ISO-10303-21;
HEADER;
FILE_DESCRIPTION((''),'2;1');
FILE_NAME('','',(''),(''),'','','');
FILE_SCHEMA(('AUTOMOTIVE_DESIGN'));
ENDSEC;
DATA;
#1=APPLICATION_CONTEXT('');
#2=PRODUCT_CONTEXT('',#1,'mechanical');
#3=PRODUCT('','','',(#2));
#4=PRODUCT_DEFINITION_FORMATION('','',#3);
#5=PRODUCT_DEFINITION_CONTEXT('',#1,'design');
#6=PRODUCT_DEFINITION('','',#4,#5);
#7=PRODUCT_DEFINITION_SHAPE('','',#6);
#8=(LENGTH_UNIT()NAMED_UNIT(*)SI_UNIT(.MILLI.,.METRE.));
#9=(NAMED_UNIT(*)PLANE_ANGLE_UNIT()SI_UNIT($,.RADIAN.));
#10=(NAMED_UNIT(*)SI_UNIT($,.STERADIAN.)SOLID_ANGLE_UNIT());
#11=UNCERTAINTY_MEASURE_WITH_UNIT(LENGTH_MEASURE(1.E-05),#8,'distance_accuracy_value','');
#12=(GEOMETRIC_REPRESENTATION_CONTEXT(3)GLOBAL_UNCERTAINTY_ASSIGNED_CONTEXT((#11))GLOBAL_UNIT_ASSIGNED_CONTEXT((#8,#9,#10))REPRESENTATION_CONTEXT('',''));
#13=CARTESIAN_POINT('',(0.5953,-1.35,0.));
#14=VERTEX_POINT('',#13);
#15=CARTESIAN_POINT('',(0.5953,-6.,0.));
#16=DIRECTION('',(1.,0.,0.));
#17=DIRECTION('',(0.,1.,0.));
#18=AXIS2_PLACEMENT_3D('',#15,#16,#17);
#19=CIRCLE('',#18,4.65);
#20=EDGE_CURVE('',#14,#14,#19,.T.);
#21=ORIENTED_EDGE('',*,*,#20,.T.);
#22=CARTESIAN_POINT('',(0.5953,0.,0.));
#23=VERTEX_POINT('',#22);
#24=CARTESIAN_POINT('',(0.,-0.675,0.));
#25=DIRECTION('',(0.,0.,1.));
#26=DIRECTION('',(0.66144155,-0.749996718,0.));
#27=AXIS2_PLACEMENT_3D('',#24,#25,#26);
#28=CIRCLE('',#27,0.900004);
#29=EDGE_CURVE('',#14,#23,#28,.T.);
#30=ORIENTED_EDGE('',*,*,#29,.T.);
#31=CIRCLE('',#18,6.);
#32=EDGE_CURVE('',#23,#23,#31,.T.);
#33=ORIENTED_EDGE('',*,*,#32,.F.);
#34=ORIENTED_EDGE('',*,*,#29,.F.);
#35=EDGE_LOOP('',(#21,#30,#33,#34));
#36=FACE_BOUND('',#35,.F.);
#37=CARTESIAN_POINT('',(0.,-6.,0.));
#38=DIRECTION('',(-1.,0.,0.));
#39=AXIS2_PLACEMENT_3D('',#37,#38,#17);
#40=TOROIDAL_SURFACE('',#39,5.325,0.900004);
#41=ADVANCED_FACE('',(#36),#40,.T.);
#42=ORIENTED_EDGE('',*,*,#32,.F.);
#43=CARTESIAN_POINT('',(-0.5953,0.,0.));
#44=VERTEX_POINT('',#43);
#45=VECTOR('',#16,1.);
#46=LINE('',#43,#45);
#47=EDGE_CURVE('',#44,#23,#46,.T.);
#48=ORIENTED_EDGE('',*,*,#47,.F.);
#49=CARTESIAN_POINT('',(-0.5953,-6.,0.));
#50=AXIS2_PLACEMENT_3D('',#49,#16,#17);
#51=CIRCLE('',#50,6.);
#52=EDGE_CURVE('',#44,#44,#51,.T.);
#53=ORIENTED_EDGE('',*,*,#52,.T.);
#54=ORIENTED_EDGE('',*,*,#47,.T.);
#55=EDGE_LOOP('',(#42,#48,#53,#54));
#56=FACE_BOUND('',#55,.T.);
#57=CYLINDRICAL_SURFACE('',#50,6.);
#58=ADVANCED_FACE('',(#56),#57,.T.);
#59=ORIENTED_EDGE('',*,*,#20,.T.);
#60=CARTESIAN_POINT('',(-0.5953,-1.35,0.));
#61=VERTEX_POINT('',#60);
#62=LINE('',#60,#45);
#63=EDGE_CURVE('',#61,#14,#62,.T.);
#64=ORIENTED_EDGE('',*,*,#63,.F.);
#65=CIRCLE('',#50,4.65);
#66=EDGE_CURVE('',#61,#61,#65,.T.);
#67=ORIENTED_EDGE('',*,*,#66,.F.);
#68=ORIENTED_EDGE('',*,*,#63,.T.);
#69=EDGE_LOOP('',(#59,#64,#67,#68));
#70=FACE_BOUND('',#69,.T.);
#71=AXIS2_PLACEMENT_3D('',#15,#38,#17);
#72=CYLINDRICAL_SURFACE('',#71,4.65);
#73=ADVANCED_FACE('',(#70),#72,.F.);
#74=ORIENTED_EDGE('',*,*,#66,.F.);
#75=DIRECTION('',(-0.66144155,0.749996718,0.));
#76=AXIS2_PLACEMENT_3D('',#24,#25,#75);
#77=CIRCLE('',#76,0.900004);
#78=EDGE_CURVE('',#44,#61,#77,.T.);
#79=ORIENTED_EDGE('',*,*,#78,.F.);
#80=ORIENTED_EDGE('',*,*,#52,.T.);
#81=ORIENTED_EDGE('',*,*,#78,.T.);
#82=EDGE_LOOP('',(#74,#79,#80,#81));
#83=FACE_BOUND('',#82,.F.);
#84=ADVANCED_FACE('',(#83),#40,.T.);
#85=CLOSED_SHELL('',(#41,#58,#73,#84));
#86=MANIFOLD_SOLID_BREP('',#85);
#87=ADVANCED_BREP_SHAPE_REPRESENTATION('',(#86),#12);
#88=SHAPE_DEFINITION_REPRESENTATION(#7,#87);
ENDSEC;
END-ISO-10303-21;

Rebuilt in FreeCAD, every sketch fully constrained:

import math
import FreeCAD as App
import Part
import Sketcher

V = App.Vector
Q = App.Units.Quantity

doc = App.newDocument("Part")
body = doc.addObject("PartDesign::Body", "Body")

sketch1 = body.newObject("Sketcher::SketchObject", "Sketch")
sketch1.AttachmentSupport = (doc.getObject("XY_Plane"), [""])
sketch1.MapMode = "FlatFace"
sketch1.addGeometry(Part.ArcOfCircle(Part.Circle(V(0, -0.7, 0), V(0, 0, 1), 0.9), math.radians(131), math.radians(229)), False)
sketch1.addGeometry(Part.LineSegment(V(-0.6, -1.4, 0), V(0.6, -1.4, 0)), False)
sketch1.addGeometry(Part.ArcOfCircle(Part.Circle(V(0, -0.7, 0), V(0, 0, 1), 0.9), math.radians(-49), math.radians(49)), False)
sketch1.addGeometry(Part.LineSegment(V(0.6, 0, 0), V(-0.6, 0, 0)), False)
sketch1.addGeometry(Part.LineSegment(V(-0.6, -6, 0), V(0.6, -6, 0)), True)
sketch1.addConstraint(Sketcher.Constraint("Coincident", 0, 2, 1, 1))
sketch1.addConstraint(Sketcher.Constraint("Coincident", 1, 2, 2, 1))
sketch1.addConstraint(Sketcher.Constraint("Coincident", 2, 2, 3, 1))
sketch1.addConstraint(Sketcher.Constraint("Coincident", 3, 2, 0, 1))
sketch1.addConstraint(Sketcher.Constraint("Horizontal", 1))
sketch1.addConstraint(Sketcher.Constraint("Horizontal", 3))
sketch1.addConstraint(Sketcher.Constraint("Horizontal", 4))
sketch1.addConstraint(Sketcher.Constraint("Coincident", 2, 3, 0, 3))
sketch1.addConstraint(Sketcher.Constraint("Equal", 0, 2))
sketch1.addConstraint(Sketcher.Constraint("Symmetric", 2, 2, 3, 2, -1, 1))
sketch1.addConstraint(Sketcher.Constraint("Vertical", 1, 2, 2, 2))
sketch1.addConstraint(Sketcher.Constraint("Vertical", 3, 2, 4, 1))
sketch1.addConstraint(Sketcher.Constraint("Vertical", 2, 2, 4, 2))
sketch1.addConstraint(Sketcher.Constraint("Radius", 0, Q("0.9 mm")))
sketch1.addConstraint(Sketcher.Constraint("DistanceY", 0, 3, -1, 1, Q("0.675 mm")))
sketch1.addConstraint(Sketcher.Constraint("DistanceY", 4, 1, -1, 1, Q("6 mm")))
revolution = body.newObject("PartDesign::Revolution", "Revolution")
revolution.Profile = sketch1
revolution.ReferenceAxis = (sketch1, ["Axis0"])
revolution.Angle = 360

doc.recompute()
